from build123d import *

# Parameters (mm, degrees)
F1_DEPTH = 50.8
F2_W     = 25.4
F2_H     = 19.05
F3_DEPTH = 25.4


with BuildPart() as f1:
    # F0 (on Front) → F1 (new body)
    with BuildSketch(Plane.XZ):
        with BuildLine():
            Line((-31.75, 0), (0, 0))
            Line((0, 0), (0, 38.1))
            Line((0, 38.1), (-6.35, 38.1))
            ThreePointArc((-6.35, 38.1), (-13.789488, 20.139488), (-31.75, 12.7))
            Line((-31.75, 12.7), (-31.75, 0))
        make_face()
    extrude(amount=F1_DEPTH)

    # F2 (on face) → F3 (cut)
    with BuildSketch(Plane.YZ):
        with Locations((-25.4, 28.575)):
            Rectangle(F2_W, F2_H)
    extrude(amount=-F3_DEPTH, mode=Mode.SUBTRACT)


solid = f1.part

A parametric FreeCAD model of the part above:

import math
import FreeCAD as App
import Part
import Sketcher
from FreeCAD import Vector
Q = App.Units.Quantity


def add_polygon(sketch, points):
    """Adds a closed chain of lines whose ends are joined by coincident constraints."""
    first, n = sketch.GeometryCount, len(points)
    for a, b in zip(points, points[1:] + points[:1]):
        sketch.addGeometry(Part.LineSegment(App.Vector(*a, 0), App.Vector(*b, 0)), False)
    for i in range(n):
        sketch.addConstraint(Sketcher.Constraint("Coincident", first + i, 2, first + (i + 1) % n, 1))

doc = App.newDocument("Part")
params = doc.addObject("Spreadsheet::Sheet", "Params")
for row, (alias, value) in enumerate([
    ("sketch1_radius", "1 in"),
    ("sketch1_height", "1.5 in"),
    ("sketch1_width", "1.25 in"),
    ("pad1_length", "2 in"),
    ("sketch2_width", "1 in"),
    ("sketch2_height", "0.75 in"),
    ("pocket1_length", "1 in"),
], start=1):
    params.set(f"A{row}", alias)
    params.set(f"B{row}", "=" + value)
    params.setAlias(f"B{row}", alias)

body = doc.addObject("PartDesign::Body", "Body")

# Sketch on XZ plane
sketch1 = doc.addObject("Sketcher::SketchObject", "Sketch")
body.addObject(sketch1)
sketch1.AttachmentSupport = (doc.XZ_Plane, [""])
sketch1.MapMode = "FlatFace"
sketch1.addGeometry(Part.LineSegment(Vector(-32, 0, 0), Vector(0, 0, 0)), False)
sketch1.addGeometry(Part.LineSegment(Vector(0, 0, 0), Vector(0, 38, 0)), False)
sketch1.addGeometry(Part.LineSegment(Vector(0, 38, 0), Vector(-6, 38, 0)), False)
sketch1.addGeometry(Part.ArcOfCircle(Part.Circle(Vector(-32, 38, 0), Vector(0, 0, 1), 25), math.radians(-90), math.radians(0)), False)
sketch1.addGeometry(Part.LineSegment(Vector(-32, 13, 0), Vector(-32, 0, 0)), False)
sketch1.addConstraint(Sketcher.Constraint("Coincident", 0, 2, 1, 1))
sketch1.addConstraint(Sketcher.Constraint("Coincident", 1, 2, 2, 1))
sketch1.addConstraint(Sketcher.Constraint("Coincident", 2, 2, 3, 2))
sketch1.addConstraint(Sketcher.Constraint("Coincident", 3, 1, 4, 1))
sketch1.addConstraint(Sketcher.Constraint("Coincident", 4, 2, 0, 1))
sketch1.addConstraint(Sketcher.Constraint("Horizontal", 0))
sketch1.addConstraint(Sketcher.Constraint("Vertical", 1))
sketch1.addConstraint(Sketcher.Constraint("Horizontal", 2))
sketch1.addConstraint(Sketcher.Constraint("Vertical", 4))
sketch1.addConstraint(Sketcher.Constraint("Coincident", 0, 2, -1, 1))
sketch1.addConstraint(Sketcher.Constraint("Horizontal", 3, 3, 1, 2))
sketch1.addConstraint(Sketcher.Constraint("Radius", 3, Q("1 in")))
sketch1.addConstraint(Sketcher.Constraint("DistanceY", 1, 1, 1, 2, Q("1.5 in")))
sketch1.addConstraint(Sketcher.Constraint("DistanceX", 3, 1, 2, 2, Q("1 in")))
sketch1.addConstraint(Sketcher.Constraint("DistanceX", 0, 1, 0, 2, Q("1.25 in")))
sketch1.setExpression("Constraints[11]", "Params.sketch1_radius")
sketch1.setExpression("Constraints[12]", "Params.sketch1_height")
sketch1.setExpression("Constraints[14]", "Params.sketch1_width")
pad1 = doc.addObject("PartDesign::Pad", "Pad")
body.addObject(pad1)
pad1.Profile = sketch1
pad1.setExpression("Length", "Params.pad1_length")

# Sketch on YZ plane
sketch2 = doc.addObject("Sketcher::SketchObject", "Sketch001")
body.addObject(sketch2)
sketch2.AttachmentSupport = (doc.YZ_Plane, [""])
sketch2.MapMode = "FlatFace"
add_polygon(sketch2, [(-38, 38), (-38, 19), (-13, 19), (-13, 38)])  # lines 0-3
sketch2.addConstraint(Sketcher.Constraint("Vertical", 0))
sketch2.addConstraint(Sketcher.Constraint("Horizontal", 1))
sketch2.addConstraint(Sketcher.Constraint("Vertical", 2))
sketch2.addConstraint(Sketcher.Constraint("Horizontal", 3))
sketch2.addConstraint(Sketcher.Constraint("DistanceX", 1, 1, 1, 2, Q("1 in")))
sketch2.addConstraint(Sketcher.Constraint("DistanceY", 0, 2, 0, 1, Q("0.75 in")))
sketch2.addConstraint(Sketcher.Constraint("DistanceX", 0, 2, -1, 1, Q("1.5 in")))
sketch2.addConstraint(Sketcher.Constraint("DistanceY", -1, 1, 2, 2, Q("1.5 in")))
sketch2.setExpression("Constraints[8]", "Params.sketch2_width")
sketch2.setExpression("Constraints[9]", "Params.sketch2_height")
pocket1 = doc.addObject("PartDesign::Pocket", "Pocket")
body.addObject(pocket1)
pocket1.Profile = sketch2
pocket1.setExpression("Length", "Params.pocket1_length")

doc.recompute()
